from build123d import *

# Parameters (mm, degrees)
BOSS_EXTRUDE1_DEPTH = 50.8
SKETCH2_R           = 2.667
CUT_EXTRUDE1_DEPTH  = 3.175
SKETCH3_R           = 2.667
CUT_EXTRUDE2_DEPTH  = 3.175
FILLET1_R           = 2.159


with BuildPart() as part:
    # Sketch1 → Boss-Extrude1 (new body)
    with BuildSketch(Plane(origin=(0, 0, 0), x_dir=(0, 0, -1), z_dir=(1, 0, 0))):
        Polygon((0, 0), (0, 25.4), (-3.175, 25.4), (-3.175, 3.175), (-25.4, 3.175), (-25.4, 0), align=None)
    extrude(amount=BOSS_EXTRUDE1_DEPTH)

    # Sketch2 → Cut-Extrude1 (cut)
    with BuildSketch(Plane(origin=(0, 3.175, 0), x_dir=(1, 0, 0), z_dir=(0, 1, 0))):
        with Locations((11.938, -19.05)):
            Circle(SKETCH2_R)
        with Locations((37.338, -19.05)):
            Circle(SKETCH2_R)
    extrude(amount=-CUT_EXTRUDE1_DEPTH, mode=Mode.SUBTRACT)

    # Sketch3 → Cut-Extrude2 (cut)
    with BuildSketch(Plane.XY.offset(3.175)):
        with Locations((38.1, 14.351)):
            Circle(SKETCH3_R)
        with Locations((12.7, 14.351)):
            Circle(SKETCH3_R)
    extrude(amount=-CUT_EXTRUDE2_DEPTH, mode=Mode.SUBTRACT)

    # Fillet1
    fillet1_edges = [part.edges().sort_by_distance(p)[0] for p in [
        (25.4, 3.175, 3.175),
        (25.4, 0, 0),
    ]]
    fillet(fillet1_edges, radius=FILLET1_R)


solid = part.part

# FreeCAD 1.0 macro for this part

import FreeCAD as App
import Part
import Sketcher
Q = App.Units.Quantity


def edges_at(feature, points):
    """Names of the edges that pass closest to the given points."""
    edges = feature.Shape.Edges
    near = lambda p: min(range(len(edges)), key=lambda i: edges[i].distToShape(Part.Vertex(*p))[0])
    return sorted({f"Edge{near(p) + 1}" for p in points})


def add_polygon(sketch, points):
    """Adds a closed chain of lines whose ends are joined by coincident constraints."""
    first, n = sketch.GeometryCount, len(points)
    for a, b in zip(points, points[1:] + points[:1]):
        sketch.addGeometry(Part.LineSegment(App.Vector(*a, 0), App.Vector(*b, 0)), False)
    for i in range(n):
        sketch.addConstraint(Sketcher.Constraint("Coincident", first + i, 2, first + (i + 1) % n, 1))

doc = App.newDocument("Part")
body = doc.addObject("PartDesign::Body", "Body")

sketch1 = doc.addObject("Sketcher::SketchObject", "Sketch")
body.addObject(sketch1)
sketch1.AttachmentSupport = (doc.YZ_Plane, [""])
sketch1.MapMode = "FlatFace"
add_polygon(sketch1, [(0, 0), (25.4, 0), (25.4, 3.2), (3.2, 3.2), (3.2, 25.4), (0, 25.4)])
sketch1.addConstraint([
    Sketcher.Constraint("Horizontal", 0),
    Sketcher.Constraint("Vertical", 1),
    Sketcher.Constraint("Horizontal", 2),
    Sketcher.Constraint("Vertical", 3),
    Sketcher.Constraint("Horizontal", 4),
    Sketcher.Constraint("Vertical", 5),
    Sketcher.Constraint("Coincident", 5, 2, -1, 1),
    Sketcher.Constraint("Equal", 4, 1),
    Sketcher.Constraint("Equal", 2, 3),
    Sketcher.Constraint("DistanceX", 0, 1, 0, 2, Q("1 in")),
    Sketcher.Constraint("DistanceX", 2, 2, 2, 1, Q("0.875 in")),
])
pad1 = doc.addObject("PartDesign::Pad", "Pad")
body.addObject(pad1)
pad1.Profile = sketch1
pad1.Length = Q("2 in")

sketch2 = doc.addObject("Sketcher::SketchObject", "Sketch001")
body.addObject(sketch2)
sketch2.AttachmentSupport = (doc.XZ_Plane, [""])
sketch2.MapMode = "FlatFace"
sketch2.AttachmentOffset = App.Placement(App.Vector(0, 0, -0.125 * 25.4), App.Rotation())
sketch2.addGeometry([
    Part.Circle(App.Vector(11.9, 19.1, 0), App.Vector(0, 0, 1), 2.7),
    Part.Circle(App.Vector(37.3, 19.1, 0), App.Vector(0, 0, 1), 2.7),
], False)
sketch2.addConstraint([
    Sketcher.Constraint("Equal", 0, 1),
    Sketcher.Constraint("Horizontal", 0, 3, 1, 3),
    Sketcher.Constraint("Diameter", 0, Q("0.21 in")),
    Sketcher.Constraint("DistanceX", 0, 3, 1, 3, Q("1 in")),
    Sketcher.Constraint("DistanceX", -1, 1, 0, 3, Q("0.47 in")),
    Sketcher.Constraint("DistanceY", -1, 1, 0, 3, Q("0.75 in")),
])
pocket1 = doc.addObject("PartDesign::Pocket", "Pocket")
body.addObject(pocket1)
pocket1.Profile = sketch2
pocket1.Length = Q("0.125 in")
pocket1.Reversed = True

sketch3 = doc.addObject("Sketcher::SketchObject", "Sketch002")
body.addObject(sketch3)
sketch3.AttachmentSupport = (doc.XY_Plane, [""])
sketch3.MapMode = "FlatFace"
sketch3.AttachmentOffset = App.Placement(App.Vector(0, 0, 0.125 * 25.4), App.Rotation())
sketch3.addGeometry([
    Part.Circle(App.Vector(38.1, 14.4, 0), App.Vector(0, 0, 1), 2.7),
    Part.Circle(App.Vector(12.7, 14.4, 0), App.Vector(0, 0, 1), 2.7),
], False)
sketch3.addConstraint([
    Sketcher.Constraint("Equal", 0, 1),
    Sketcher.Constraint("Horizontal", 0, 3, 1, 3),
    Sketcher.Constraint("Diameter", 0, Q("0.21 in")),
    Sketcher.Constraint("DistanceX", 1, 3, 0, 3, Q("1 in")),
    Sketcher.Constraint("DistanceX", -1, 1, 0, 3, Q("1.5 in")),
    Sketcher.Constraint("DistanceY", -1, 1, 0, 3, Q("0.565 in")),
])
pocket2 = doc.addObject("PartDesign::Pocket", "Pocket001")
body.addObject(pocket2)
pocket2.Profile = sketch3
pocket2.Length = Q("0.125 in")
doc.recompute()

fillet = doc.addObject("PartDesign::Fillet", "Fillet")
body.addObject(fillet)
fillet.Base = (pocket2, edges_at(pocket2, [(25.4, 3.175, 3.175), (25.4, 0, 0)]))
fillet.Radius = Q("0.085 in")

doc.recompute()
